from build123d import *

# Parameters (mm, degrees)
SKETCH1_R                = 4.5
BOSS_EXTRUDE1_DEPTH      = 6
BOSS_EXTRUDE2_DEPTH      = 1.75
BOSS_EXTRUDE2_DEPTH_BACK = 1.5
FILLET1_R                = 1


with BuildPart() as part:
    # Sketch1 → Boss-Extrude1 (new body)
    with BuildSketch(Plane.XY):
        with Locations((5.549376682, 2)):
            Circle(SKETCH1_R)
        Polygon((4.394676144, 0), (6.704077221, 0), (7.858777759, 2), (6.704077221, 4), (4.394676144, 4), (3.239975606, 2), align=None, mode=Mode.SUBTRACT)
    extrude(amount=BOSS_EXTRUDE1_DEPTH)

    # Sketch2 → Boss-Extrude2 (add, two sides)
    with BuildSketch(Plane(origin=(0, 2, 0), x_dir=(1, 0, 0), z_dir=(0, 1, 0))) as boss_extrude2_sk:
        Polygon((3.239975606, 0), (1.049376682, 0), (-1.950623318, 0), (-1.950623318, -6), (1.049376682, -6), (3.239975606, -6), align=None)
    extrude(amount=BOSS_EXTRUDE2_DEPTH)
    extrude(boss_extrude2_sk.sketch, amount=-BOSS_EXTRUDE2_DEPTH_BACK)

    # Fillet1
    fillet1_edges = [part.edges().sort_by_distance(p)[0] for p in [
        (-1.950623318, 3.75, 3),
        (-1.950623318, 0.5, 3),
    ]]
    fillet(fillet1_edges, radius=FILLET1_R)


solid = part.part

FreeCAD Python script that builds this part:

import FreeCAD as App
import Part
import Sketcher
Q = App.Units.Quantity


def edges_at(feature, points):
    """Names of the edges that pass closest to the given points."""
    edges = feature.Shape.Edges
    near = lambda p: min(range(len(edges)), key=lambda i: edges[i].distToShape(Part.Vertex(*p))[0])
    return sorted({f"Edge{near(p) + 1}" for p in points})

doc = App.newDocument("Part")
body = doc.addObject("PartDesign::Body", "Body")

# Sketch on XY plane
sketch1 = doc.addObject("Sketcher::SketchObject", "Sketch")
body.addObject(sketch1)
sketch1.AttachmentSupport = (doc.XY_Plane, [""])
sketch1.MapMode = "FlatFace"
sketch1.addGeometry([
    Part.Circle(App.Vector(5.549377, 2, 0), App.Vector(0, 0, 1), 4.5),  # 0
    Part.LineSegment(App.Vector(6.704077, 0, 0), App.Vector(4.394676, 0, 0)),  # 1
    Part.LineSegment(App.Vector(4.394676, 0, 0), App.Vector(3.239976, 2, 0)),  # 2
    Part.LineSegment(App.Vector(3.239976, 2, 0), App.Vector(4.394676, 4, 0)),  # 3
    Part.LineSegment(App.Vector(4.394676, 4, 0), App.Vector(6.704077, 4, 0)),  # 4
    Part.LineSegment(App.Vector(6.704077, 4, 0), App.Vector(7.858778, 2, 0)),  # 5
    Part.LineSegment(App.Vector(7.858778, 2, 0), App.Vector(6.704077, 0, 0)),  # 6
], False)
sketch1.addConstraint([
    Sketcher.Constraint("Coincident", 1, 2, 2, 1),
    Sketcher.Constraint("Coincident", 2, 2, 3, 1),
    Sketcher.Constraint("Coincident", 3, 2, 4, 1),
    Sketcher.Constraint("Coincident", 4, 2, 5, 1),
    Sketcher.Constraint("Coincident", 5, 2, 6, 1),
    Sketcher.Constraint("Coincident", 6, 2, 1, 1),
    Sketcher.Constraint("Horizontal", 1),
    Sketcher.Constraint("Horizontal", 4),
    Sketcher.Constraint("PointOnObject", 1, 2, -1),
    Sketcher.Constraint("Parallel", 2, 5),
    Sketcher.Constraint("Parallel", 3, 6),
    Sketcher.Constraint("Horizontal", 0, 3, 2, 2),
    Sketcher.Constraint("Horizontal", 2, 2, 5, 2),
    Sketcher.Constraint("Vertical", 1, 2, 3, 2),
    Sketcher.Constraint("Vertical", 4, 2, 6, 2),
    Sketcher.Constraint("Diameter", 0, Q("9 mm")),
    Sketcher.Constraint("Angle", 2, Q("120 deg")),
    Sketcher.Constraint("DistanceY", -1, 1, 0, 3, Q("2 mm")),
    Sketcher.Constraint("DistanceX", 1, 2, 1, 1, Q("2.309401 mm")),
    Sketcher.Constraint("DistanceX", 1, 2, 0, 3, Q("1.154701 mm")),
    Sketcher.Constraint("DistanceX", -1, 1, 0, 3, Q("5.549377 mm")),
])
pad1 = doc.addObject("PartDesign::Pad", "Pad")
body.addObject(pad1)
pad1.Profile = sketch1
pad1.Length = 6

# Sketch on XZ plane
sketch2 = doc.addObject("Sketcher::SketchObject", "Sketch001")
body.addObject(sketch2)
sketch2.AttachmentSupport = (doc.XZ_Plane, [""])
sketch2.MapMode = "FlatFace"
sketch2.AttachmentOffset = App.Placement(App.Vector(0, 0, -2), App.Rotation())
sketch2.addGeometry([
    Part.LineSegment(App.Vector(3.239976, 0, 0), App.Vector(-1.950623, 0, 0)),
    Part.LineSegment(App.Vector(-1.950623, 0, 0), App.Vector(-1.950623, 6, 0)),
    Part.LineSegment(App.Vector(-1.950623, 6, 0), App.Vector(3.239976, 6, 0)),
    Part.LineSegment(App.Vector(3.239976, 6, 0), App.Vector(3.239976, 0, 0)),
], False)
sketch2.addConstraint([
    Sketcher.Constraint("Coincident", 0, 2, 1, 1),
    Sketcher.Constraint("Coincident", 1, 2, 2, 1),
    Sketcher.Constraint("Coincident", 2, 2, 3, 1),
    Sketcher.Constraint("Coincident", 3, 2, 0, 1),
    Sketcher.Constraint("Horizontal", 0),
    Sketcher.Constraint("Vertical", 1),
    Sketcher.Constraint("Horizontal", 2),
    Sketcher.Constraint("Vertical", 3),
    Sketcher.Constraint("PointOnObject", 0, 2, -1),
    Sketcher.Constraint("DistanceY", 1, 1, 1, 2, Q("6 mm")),
    Sketcher.Constraint("DistanceX", 0, 2, 0, 1, Q("5.190599 mm")),
    Sketcher.Constraint("DistanceX", 0, 2, -1, 1, Q("1.950623 mm")),
])
pad2 = doc.addObject("PartDesign::Pad", "Pad001")
body.addObject(pad2)
pad2.Profile = sketch2
pad2.Type = "TwoLengths"
pad2.Length = 1.75
pad2.Length2 = 1.5
pad2.Reversed = True
doc.recompute()

fillet = doc.addObject("PartDesign::Fillet", "Fillet")
body.addObject(fillet)
fillet.Base = (pad2, edges_at(pad2, [(-1.951, 3.75, 3), (-1.951, 0.5, 3)]))
fillet.Radius = 1

doc.recompute()
